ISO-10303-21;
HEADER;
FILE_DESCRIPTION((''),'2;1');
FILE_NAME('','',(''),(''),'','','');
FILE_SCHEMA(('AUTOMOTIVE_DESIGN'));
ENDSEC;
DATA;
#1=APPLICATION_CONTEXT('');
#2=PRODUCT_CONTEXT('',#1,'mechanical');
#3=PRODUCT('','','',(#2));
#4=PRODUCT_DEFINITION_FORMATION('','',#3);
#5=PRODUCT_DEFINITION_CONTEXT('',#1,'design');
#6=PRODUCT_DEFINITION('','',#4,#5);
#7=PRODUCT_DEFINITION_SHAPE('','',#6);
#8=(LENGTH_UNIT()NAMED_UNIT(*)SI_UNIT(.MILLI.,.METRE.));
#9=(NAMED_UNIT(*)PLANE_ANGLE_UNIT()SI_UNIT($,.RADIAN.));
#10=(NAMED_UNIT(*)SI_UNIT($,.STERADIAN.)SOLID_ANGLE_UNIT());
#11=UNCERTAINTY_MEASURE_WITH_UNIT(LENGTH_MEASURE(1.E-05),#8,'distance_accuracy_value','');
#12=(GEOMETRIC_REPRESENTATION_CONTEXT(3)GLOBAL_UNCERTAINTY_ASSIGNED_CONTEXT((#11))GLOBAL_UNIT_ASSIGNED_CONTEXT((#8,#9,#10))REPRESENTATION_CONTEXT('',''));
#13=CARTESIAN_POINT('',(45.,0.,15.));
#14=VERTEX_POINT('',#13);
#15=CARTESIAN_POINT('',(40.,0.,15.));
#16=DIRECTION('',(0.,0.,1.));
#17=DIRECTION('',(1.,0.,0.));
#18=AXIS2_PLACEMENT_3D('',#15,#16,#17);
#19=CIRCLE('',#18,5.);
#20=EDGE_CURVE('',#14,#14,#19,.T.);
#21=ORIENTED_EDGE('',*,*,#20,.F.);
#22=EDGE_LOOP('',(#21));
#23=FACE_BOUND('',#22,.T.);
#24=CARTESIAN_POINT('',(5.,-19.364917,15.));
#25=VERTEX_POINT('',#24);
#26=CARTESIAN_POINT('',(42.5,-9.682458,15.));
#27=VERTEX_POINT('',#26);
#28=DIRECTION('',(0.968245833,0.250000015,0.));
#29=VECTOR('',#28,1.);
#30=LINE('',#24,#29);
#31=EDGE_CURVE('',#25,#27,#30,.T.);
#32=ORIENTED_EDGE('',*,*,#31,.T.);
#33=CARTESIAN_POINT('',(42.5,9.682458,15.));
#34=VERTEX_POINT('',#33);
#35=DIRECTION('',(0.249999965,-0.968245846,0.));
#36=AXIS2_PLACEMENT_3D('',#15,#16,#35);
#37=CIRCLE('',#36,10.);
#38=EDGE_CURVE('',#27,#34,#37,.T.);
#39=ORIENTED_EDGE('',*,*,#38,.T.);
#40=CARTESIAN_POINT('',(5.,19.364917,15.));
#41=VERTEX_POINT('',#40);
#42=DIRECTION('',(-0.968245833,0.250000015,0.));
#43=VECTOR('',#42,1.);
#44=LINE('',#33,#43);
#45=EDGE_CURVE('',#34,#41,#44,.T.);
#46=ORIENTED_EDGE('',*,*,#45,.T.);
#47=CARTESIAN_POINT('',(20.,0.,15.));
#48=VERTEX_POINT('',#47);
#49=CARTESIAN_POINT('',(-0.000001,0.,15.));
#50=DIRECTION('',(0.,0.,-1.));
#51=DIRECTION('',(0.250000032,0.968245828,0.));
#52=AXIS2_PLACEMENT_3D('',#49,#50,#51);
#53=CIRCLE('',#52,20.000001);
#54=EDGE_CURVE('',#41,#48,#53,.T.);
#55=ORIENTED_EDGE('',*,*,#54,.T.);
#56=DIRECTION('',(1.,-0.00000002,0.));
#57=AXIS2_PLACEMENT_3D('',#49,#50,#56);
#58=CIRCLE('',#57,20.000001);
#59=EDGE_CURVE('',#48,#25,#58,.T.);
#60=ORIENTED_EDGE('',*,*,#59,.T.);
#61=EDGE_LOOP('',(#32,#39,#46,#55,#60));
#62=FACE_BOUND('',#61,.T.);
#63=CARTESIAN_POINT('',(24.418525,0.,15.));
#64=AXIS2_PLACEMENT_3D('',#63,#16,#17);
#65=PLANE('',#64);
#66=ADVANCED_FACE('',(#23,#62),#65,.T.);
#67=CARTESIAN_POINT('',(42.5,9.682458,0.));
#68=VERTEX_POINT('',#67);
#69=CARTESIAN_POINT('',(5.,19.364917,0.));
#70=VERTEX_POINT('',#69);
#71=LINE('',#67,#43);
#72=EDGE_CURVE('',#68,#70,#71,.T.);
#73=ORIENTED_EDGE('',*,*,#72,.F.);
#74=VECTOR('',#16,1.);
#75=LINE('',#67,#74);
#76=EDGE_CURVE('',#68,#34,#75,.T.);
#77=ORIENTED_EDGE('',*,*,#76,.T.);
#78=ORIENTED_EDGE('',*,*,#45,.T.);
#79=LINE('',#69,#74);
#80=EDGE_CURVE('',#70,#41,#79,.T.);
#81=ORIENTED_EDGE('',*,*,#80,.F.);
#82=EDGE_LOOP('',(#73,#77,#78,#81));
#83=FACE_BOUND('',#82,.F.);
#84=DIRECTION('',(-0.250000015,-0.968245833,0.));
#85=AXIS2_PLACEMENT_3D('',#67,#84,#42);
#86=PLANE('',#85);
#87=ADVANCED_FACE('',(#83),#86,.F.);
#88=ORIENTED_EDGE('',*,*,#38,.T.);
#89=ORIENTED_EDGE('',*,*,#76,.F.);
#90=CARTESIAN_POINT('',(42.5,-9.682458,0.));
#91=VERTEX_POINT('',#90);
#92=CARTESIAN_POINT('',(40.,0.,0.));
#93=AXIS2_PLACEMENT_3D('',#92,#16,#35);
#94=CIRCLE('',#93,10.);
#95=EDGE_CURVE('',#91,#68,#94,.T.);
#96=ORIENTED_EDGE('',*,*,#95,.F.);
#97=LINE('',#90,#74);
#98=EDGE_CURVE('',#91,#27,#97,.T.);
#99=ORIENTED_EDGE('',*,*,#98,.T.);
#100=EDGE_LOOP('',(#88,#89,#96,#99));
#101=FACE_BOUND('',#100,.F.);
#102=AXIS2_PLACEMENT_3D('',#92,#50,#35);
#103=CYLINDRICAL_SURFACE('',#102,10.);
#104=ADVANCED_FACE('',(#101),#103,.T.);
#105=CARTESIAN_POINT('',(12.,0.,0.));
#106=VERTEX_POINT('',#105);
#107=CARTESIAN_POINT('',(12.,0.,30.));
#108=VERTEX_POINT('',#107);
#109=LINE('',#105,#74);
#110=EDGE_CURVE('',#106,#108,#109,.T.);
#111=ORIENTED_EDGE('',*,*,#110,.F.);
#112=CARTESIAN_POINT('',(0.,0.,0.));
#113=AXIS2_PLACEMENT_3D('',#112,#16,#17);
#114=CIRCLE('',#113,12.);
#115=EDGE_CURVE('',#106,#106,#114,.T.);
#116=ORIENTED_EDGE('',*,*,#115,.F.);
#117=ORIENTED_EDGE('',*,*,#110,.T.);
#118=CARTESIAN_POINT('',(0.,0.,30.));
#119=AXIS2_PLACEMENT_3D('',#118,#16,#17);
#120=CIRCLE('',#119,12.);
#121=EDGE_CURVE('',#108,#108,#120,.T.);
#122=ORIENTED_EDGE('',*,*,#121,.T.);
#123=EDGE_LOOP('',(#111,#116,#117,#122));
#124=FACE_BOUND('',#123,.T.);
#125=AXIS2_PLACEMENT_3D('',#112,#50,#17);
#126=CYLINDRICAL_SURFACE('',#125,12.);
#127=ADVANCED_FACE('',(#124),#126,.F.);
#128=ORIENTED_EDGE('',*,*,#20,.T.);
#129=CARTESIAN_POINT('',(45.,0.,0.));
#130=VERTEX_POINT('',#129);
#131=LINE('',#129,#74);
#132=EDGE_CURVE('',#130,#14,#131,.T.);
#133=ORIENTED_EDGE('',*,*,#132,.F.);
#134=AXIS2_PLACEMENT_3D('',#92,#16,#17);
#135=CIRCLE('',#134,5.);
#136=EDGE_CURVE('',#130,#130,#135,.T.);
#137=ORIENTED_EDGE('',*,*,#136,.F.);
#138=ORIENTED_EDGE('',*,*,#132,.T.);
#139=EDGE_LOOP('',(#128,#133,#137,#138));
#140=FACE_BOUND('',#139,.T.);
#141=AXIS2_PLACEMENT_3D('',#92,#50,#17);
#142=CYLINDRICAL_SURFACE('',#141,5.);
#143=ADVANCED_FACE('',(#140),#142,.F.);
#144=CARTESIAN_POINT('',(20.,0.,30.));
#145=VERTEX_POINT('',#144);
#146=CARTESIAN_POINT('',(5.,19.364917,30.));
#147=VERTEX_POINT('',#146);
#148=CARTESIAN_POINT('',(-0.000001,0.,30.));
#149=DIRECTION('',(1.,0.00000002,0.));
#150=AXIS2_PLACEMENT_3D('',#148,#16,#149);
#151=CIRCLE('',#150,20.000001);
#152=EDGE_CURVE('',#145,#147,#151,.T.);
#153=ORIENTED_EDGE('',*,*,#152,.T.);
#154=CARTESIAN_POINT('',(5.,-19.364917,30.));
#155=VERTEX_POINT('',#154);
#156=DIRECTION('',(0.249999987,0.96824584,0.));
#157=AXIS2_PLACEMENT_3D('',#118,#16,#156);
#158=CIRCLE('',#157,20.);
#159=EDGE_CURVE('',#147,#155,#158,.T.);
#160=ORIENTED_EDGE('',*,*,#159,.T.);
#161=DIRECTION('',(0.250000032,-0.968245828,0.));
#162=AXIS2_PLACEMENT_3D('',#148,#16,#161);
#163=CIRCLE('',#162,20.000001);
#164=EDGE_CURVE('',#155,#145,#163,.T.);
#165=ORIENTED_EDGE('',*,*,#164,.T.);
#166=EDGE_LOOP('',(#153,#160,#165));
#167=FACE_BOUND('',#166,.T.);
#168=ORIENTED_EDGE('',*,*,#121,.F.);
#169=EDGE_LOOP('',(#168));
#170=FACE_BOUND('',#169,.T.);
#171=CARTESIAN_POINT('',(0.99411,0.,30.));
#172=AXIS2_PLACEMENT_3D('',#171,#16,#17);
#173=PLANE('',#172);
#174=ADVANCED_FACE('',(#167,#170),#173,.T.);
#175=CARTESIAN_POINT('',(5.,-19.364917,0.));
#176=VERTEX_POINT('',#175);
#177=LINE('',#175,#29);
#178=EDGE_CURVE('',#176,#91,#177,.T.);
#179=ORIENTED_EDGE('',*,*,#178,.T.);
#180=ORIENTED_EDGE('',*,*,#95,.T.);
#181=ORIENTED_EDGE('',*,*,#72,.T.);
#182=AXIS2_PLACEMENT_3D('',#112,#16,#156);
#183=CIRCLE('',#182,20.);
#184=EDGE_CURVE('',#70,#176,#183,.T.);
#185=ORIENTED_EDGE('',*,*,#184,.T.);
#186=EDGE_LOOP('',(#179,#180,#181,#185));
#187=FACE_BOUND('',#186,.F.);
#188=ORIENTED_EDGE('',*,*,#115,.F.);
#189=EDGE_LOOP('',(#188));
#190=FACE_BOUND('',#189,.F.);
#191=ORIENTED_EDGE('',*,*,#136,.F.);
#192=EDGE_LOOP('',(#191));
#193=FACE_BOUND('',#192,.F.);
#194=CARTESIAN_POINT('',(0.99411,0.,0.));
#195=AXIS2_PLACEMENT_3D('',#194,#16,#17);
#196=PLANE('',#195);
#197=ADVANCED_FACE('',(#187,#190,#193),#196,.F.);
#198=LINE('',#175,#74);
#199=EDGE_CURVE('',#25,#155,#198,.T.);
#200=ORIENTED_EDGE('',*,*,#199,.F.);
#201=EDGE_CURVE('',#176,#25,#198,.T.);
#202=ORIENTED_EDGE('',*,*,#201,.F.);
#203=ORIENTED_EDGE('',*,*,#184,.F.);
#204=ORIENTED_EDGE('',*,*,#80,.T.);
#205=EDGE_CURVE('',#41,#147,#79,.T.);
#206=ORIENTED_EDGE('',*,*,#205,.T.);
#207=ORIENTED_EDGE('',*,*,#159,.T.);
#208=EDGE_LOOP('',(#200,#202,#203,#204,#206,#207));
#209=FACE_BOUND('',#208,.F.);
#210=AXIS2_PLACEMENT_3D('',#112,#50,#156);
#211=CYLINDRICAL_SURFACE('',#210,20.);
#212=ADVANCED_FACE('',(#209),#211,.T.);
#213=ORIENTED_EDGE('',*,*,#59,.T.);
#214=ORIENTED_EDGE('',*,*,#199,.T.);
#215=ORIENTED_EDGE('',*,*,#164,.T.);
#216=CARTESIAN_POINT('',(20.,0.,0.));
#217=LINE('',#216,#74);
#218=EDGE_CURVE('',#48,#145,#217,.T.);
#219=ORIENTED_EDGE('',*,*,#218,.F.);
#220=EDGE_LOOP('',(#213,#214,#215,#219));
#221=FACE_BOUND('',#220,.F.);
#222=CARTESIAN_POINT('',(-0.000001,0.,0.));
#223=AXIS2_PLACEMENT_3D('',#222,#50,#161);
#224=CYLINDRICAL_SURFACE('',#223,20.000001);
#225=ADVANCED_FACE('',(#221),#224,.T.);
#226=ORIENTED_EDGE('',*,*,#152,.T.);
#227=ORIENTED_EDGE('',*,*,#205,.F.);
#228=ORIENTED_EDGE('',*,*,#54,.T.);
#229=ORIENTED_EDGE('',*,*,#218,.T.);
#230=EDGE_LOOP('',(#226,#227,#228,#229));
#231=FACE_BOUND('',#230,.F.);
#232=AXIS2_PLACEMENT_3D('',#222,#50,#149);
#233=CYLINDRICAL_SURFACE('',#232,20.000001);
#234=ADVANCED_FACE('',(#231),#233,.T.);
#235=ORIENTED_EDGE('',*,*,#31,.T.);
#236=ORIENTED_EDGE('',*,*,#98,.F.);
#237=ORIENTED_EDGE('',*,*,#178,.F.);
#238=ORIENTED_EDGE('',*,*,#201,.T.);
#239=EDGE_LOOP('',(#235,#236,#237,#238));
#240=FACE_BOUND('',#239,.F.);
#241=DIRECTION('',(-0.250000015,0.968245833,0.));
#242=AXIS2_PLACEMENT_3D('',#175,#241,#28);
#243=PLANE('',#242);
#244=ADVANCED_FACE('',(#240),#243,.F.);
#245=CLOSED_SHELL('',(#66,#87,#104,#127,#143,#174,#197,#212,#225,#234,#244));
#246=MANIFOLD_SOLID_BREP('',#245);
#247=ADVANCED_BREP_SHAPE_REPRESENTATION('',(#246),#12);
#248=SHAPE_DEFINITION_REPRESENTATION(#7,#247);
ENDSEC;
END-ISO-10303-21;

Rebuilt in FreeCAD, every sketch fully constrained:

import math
import FreeCAD as App
import Part
import Sketcher

V = App.Vector

doc = App.newDocument("Part")
params = doc.addObject("Spreadsheet::Sheet", "Params")
for row, (alias, value) in enumerate([
    ("sketch1_diameter", "10 mm"),
    ("sketch1_radius", "10 mm"),
    ("sketch1_radius2", "20.000001 mm"),
    ("pad1_length", "15 mm"),
    ("sketch2_diameter", "24 mm"),
    ("sketch2_radius", "20 mm"),
    ("pad2_length", "30 mm"),
], start=1):
    params.set(f"A{row}", alias)
    params.set(f"B{row}", "=" + value)
    params.setAlias(f"B{row}", alias)

body = doc.addObject("PartDesign::Body", "Body")

# Sketch on XY plane
sketch1 = doc.addObject("Sketcher::SketchObject", "Sketch")
body.addObject(sketch1)
sketch1.AttachmentSupport = (doc.XY_Plane, [""])
sketch1.MapMode = "FlatFace"
sketch1.addGeometry([
    Part.LineSegment(V(5, -19, 0), V(42, -10, 0)),  # 0
    Part.ArcOfCircle(Part.Circle(V(40, 0, 0), V(0, 0, 1), 10), math.radians(-76), math.radians(76)),  # 1
    Part.LineSegment(V(42, 10, 0), V(5, 19, 0)),  # 2
    Part.ArcOfCircle(Part.Circle(V(0, 0, 0), V(0, 0, 1), 20), math.radians(0), math.radians(76)),  # 3
    Part.ArcOfCircle(Part.Circle(V(0, 0, 0), V(0, 0, 1), 20), math.radians(-76), math.radians(0)),  # 4
    Part.Circle(V(40, 0, 0), V(0, 0, 1), 5),  # 5
], False)
sketch1.addConstraint([
    Sketcher.Constraint("Tangent", 0, 2, 1, 1),
    Sketcher.Constraint("Tangent", 1, 2, 2, 1),
    Sketcher.Constraint("Tangent", 2, 2, 3, 2),
    Sketcher.Constraint("Tangent", 3, 1, 4, 2),
    Sketcher.Constraint("Tangent", 4, 1, 0, 1),
    Sketcher.Constraint("Coincident", 3, 3, -1, 1),
    Sketcher.Constraint("Coincident", 5, 3, 1, 3),
    Sketcher.Constraint("Equal", 3, 4),
    Sketcher.Constraint("PointOnObject", 1, 3, -1),
    Sketcher.Constraint("PointOnObject", 3, 1, -1),
    Sketcher.Constraint("Diameter", 5, 10.0),
    Sketcher.Constraint("Radius", 1, 10.0),
    Sketcher.Constraint("Radius", 3, 20.000001),
    Sketcher.Constraint("DistanceX", -1, 1, 1, 3, 40.0),
])
sketch1.setExpression("Constraints[10]", "Params.sketch1_diameter")
sketch1.setExpression("Constraints[11]", "Params.sketch1_radius")
sketch1.setExpression("Constraints[12]", "Params.sketch1_radius2")
pad1 = doc.addObject("PartDesign::Pad", "Pad")
body.addObject(pad1)
pad1.Profile = sketch1
pad1.setExpression("Length", "Params.pad1_length")

# Sketch on XY plane
sketch2 = doc.addObject("Sketcher::SketchObject", "Sketch001")
body.addObject(sketch2)
sketch2.AttachmentSupport = (doc.XY_Plane, [""])
sketch2.MapMode = "FlatFace"
sketch2.addGeometry([
    Part.ArcOfCircle(Part.Circle(V(0, 0, 0), V(0, 0, 1), 20), math.radians(76), math.radians(284)),
    Part.ArcOfCircle(Part.Circle(V(0, 0, 0), V(0, 0, 1), 20), math.radians(-76), math.radians(0)),
    Part.ArcOfCircle(Part.Circle(V(0, 0, 0), V(0, 0, 1), 20), math.radians(0), math.radians(76)),
    Part.Circle(V(0, 0, 0), V(0, 0, 1), 12),
], False)
sketch2.addConstraint([
    Sketcher.Constraint("Tangent", 0, 2, 1, 1),
    Sketcher.Constraint("Tangent", 1, 2, 2, 1),
    Sketcher.Constraint("Tangent", 2, 2, 0, 1),
    Sketcher.Constraint("Coincident", 0, 3, -1, 1),
    Sketcher.Constraint("Coincident", 3, 3, -1, 1),
    Sketcher.Constraint("PointOnObject", 1, 2, -1),
    Sketcher.Constraint("Vertical", 0, 2, 2, 2),
    Sketcher.Constraint("Diameter", 3, 24.0),
    Sketcher.Constraint("Radius", 0, 20.0),
    Sketcher.Constraint("DistanceX", -1, 1, 0, 2, 5.0),
])
sketch2.setExpression("Constraints[7]", "Params.sketch2_diameter")
sketch2.setExpression("Constraints[8]", "Params.sketch2_radius")
pad2 = doc.addObject("PartDesign::Pad", "Pad001")
body.addObject(pad2)
pad2.Profile = sketch2
pad2.setExpression("Length", "Params.pad2_length")

doc.recompute()
